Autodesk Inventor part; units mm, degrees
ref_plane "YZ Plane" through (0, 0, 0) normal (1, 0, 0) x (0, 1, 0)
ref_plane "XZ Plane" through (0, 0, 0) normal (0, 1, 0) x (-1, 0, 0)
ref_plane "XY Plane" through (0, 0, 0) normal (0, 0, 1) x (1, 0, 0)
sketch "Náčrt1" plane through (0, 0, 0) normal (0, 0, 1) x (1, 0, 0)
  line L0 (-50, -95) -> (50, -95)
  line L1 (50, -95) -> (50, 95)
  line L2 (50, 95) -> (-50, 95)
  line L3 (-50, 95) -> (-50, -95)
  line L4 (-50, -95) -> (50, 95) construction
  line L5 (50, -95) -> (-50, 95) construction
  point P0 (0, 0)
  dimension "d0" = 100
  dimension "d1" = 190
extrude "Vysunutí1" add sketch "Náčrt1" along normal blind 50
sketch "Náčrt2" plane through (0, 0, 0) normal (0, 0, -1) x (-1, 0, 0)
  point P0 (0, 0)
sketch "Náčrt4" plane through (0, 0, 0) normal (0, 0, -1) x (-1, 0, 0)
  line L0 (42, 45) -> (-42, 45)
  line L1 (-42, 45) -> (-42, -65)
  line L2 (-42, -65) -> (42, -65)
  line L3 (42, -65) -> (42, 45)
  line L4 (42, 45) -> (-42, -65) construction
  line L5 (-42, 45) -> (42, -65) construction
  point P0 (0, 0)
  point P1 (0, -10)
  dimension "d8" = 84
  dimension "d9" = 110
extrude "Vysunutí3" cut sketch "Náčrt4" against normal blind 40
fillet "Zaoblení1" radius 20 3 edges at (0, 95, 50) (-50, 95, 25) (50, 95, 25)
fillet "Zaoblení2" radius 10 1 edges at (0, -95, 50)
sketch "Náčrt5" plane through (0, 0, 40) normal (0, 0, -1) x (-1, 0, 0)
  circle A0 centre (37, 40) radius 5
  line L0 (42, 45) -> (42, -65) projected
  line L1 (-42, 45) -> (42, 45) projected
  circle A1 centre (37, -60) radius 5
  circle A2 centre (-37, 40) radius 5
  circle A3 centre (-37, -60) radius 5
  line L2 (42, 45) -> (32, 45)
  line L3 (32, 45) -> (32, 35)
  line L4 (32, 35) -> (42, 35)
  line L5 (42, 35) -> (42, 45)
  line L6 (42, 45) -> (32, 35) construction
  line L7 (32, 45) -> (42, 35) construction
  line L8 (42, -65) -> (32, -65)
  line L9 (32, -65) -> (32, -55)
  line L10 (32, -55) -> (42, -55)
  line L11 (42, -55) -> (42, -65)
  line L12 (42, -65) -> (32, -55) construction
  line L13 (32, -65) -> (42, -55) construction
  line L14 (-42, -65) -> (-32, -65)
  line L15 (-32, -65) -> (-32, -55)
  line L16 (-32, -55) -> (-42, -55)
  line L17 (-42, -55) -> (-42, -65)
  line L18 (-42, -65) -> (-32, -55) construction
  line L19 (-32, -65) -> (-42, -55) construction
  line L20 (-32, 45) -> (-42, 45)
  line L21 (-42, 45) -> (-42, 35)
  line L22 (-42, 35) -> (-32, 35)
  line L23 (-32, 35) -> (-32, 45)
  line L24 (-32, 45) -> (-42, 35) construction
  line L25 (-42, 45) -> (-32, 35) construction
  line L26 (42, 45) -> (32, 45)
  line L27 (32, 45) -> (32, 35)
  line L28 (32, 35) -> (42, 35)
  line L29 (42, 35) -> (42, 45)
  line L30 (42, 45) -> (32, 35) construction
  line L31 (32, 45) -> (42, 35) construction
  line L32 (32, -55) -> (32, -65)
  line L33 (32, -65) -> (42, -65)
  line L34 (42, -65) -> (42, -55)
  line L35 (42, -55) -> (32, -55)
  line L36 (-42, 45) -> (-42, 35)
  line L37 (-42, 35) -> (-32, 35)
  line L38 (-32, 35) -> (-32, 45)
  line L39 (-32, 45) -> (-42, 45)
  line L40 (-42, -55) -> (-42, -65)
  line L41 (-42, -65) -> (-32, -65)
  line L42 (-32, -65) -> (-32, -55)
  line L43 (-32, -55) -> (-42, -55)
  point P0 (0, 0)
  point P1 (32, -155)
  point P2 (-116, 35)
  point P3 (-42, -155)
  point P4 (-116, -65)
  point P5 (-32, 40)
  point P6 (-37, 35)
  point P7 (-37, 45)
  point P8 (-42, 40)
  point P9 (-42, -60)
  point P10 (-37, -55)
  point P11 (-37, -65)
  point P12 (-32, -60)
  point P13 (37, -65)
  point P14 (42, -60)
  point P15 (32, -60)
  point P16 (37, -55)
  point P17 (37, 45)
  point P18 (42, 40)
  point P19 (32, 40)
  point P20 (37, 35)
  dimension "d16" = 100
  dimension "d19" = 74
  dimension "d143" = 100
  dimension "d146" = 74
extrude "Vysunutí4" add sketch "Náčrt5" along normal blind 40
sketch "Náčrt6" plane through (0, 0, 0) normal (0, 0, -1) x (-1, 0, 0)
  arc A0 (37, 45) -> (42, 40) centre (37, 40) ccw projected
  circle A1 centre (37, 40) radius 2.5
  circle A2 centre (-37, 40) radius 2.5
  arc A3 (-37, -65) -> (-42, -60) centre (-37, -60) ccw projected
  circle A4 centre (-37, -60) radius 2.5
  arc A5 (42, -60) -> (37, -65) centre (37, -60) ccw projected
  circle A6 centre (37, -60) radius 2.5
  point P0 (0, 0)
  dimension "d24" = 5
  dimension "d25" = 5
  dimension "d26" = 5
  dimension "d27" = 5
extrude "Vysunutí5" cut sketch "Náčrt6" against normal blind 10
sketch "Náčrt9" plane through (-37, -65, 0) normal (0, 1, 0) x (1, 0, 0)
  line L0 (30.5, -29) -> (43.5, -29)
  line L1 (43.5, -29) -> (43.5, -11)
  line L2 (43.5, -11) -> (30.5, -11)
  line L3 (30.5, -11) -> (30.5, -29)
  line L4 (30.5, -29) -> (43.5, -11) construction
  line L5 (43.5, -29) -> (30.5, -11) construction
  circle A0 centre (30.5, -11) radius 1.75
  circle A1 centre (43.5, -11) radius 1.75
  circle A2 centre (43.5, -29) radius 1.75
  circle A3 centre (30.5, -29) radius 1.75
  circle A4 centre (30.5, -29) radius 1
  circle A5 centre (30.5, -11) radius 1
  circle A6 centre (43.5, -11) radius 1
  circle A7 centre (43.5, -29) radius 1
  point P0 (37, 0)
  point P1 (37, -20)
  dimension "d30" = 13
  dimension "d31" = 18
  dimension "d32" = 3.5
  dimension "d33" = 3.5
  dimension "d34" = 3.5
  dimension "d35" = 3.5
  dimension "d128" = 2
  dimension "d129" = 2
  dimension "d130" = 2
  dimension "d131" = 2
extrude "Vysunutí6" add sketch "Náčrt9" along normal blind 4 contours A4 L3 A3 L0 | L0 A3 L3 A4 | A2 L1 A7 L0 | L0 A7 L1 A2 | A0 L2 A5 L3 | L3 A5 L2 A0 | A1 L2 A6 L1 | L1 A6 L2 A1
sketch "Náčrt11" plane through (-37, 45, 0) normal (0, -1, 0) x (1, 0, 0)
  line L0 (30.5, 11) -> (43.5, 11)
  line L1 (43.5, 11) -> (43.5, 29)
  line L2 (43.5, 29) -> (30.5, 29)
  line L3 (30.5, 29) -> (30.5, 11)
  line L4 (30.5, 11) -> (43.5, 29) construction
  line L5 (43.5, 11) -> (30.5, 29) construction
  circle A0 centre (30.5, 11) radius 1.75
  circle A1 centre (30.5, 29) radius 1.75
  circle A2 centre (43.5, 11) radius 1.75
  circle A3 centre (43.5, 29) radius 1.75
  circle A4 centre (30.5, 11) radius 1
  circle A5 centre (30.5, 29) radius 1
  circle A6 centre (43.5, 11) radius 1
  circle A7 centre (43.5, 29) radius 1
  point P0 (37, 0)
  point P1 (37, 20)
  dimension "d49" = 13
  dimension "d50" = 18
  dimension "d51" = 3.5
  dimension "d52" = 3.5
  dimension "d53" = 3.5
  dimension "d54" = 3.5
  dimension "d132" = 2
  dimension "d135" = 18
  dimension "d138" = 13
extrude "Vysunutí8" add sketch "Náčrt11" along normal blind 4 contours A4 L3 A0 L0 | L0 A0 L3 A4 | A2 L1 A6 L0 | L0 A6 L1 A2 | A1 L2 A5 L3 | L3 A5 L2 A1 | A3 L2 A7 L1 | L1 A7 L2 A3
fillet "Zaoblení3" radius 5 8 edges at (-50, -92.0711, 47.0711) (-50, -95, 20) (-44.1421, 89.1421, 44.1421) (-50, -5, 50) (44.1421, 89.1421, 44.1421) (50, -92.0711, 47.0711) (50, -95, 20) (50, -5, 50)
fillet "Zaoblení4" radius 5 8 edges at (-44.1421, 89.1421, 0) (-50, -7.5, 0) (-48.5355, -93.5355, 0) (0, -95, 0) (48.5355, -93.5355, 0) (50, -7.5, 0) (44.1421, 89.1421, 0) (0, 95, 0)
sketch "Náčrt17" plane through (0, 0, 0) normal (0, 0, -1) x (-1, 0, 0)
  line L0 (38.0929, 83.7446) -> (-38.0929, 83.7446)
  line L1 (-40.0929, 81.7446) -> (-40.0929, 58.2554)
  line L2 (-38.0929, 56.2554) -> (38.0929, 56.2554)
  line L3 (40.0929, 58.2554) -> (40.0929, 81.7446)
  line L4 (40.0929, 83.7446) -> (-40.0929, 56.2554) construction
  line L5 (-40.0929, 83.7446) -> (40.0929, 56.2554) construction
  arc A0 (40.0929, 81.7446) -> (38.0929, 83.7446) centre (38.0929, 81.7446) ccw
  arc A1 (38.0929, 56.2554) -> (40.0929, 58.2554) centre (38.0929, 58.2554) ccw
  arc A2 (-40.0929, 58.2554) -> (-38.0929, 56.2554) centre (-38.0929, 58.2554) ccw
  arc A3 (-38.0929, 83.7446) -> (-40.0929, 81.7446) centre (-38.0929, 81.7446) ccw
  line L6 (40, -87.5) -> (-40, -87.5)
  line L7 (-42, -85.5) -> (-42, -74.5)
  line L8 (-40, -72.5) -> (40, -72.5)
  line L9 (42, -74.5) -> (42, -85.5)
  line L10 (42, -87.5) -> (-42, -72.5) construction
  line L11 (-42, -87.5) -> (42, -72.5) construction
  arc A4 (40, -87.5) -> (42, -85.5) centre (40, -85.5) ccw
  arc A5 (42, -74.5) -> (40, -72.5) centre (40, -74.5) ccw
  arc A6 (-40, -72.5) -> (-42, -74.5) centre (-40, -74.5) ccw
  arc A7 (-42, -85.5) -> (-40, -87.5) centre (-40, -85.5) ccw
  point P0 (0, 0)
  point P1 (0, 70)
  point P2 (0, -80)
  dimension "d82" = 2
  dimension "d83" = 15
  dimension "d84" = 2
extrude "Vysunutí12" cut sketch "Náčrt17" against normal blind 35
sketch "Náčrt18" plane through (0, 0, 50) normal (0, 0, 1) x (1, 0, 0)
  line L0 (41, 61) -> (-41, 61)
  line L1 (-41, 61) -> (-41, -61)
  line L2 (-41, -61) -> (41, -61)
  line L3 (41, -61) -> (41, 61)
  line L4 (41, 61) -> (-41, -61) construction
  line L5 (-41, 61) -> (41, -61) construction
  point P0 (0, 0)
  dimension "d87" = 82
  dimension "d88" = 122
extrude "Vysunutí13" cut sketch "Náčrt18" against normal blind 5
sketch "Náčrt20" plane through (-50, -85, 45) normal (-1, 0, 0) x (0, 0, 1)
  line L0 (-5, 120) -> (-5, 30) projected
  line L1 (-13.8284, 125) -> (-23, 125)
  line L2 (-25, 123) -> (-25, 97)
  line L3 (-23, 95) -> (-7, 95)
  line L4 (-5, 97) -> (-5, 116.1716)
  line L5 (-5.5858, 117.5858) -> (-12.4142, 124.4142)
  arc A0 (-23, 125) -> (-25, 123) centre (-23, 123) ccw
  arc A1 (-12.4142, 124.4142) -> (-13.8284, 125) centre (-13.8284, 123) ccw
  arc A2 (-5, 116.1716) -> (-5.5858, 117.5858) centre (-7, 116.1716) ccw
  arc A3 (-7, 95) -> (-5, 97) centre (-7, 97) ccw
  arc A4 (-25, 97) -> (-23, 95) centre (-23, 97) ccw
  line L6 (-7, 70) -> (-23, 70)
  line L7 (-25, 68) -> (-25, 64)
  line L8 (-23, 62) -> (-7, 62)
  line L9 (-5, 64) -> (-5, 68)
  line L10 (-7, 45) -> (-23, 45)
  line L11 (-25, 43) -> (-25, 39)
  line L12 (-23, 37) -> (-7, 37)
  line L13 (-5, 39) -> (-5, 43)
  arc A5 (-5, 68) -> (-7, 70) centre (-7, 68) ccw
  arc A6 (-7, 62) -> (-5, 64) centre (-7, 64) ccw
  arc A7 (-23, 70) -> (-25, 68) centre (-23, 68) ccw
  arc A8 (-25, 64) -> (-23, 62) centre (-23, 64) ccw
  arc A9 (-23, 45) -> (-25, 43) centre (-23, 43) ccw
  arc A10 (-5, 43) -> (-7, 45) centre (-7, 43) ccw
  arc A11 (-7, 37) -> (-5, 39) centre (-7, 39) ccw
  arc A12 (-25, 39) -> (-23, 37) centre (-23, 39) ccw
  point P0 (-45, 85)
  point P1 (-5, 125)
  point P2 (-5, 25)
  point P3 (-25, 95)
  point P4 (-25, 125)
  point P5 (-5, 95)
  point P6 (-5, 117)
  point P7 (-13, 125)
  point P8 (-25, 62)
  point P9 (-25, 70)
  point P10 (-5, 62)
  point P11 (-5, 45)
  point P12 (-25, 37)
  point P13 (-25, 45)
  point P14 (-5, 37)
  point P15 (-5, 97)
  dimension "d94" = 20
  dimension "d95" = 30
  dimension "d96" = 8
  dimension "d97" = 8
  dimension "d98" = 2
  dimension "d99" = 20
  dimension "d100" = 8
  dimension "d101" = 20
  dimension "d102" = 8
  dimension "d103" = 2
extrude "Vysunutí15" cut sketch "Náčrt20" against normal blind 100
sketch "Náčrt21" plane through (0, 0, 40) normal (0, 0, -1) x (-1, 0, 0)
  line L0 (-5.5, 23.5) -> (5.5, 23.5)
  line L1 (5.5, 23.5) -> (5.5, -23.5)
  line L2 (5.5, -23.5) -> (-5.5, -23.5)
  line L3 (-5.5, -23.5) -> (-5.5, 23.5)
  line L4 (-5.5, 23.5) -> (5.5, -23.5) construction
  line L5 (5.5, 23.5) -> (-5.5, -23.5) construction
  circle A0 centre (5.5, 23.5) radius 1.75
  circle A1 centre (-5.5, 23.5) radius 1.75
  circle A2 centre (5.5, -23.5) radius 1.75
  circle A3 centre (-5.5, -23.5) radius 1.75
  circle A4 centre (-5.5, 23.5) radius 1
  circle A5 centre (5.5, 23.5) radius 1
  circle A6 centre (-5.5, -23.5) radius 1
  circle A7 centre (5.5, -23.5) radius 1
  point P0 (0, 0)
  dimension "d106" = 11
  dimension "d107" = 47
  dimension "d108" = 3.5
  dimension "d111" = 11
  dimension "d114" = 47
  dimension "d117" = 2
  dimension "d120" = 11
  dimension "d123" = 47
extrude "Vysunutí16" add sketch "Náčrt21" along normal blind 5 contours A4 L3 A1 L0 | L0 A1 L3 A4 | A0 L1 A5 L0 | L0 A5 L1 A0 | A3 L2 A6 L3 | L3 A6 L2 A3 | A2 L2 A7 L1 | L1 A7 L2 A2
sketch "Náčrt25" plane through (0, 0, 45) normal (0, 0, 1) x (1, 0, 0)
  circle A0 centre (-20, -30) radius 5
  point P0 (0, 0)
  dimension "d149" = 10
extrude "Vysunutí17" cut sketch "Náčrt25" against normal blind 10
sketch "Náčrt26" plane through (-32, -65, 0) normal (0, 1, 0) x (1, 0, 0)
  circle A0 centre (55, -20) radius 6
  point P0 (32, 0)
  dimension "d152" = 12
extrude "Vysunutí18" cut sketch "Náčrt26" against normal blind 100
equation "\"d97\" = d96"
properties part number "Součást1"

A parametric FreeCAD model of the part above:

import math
import FreeCAD as App
import Part
import Sketcher

V = App.Vector
Q = App.Units.Quantity


def edges_at(feature, points):
    """Names of the edges that pass closest to the given points."""
    edges = feature.Shape.Edges
    near = lambda p: min(range(len(edges)), key=lambda i: edges[i].distToShape(Part.Vertex(*p))[0])
    return sorted({f"Edge{near(p) + 1}" for p in points})

doc = App.newDocument("Part")
body = doc.addObject("PartDesign::Body", "Body")

# Sketch on XY plane
sketch1 = body.newObject("Sketcher::SketchObject", "Sketch")
sketch1.AttachmentSupport = (doc.getObject("XY_Plane"), [""])
sketch1.MapMode = "FlatFace"
sketch1.addGeometry([
    Part.LineSegment(V(-50, 95, 0), V(-50, -95, 0)),
    Part.LineSegment(V(-50, -95, 0), V(50, -95, 0)),
    Part.LineSegment(V(50, -95, 0), V(50, 95, 0)),
    Part.LineSegment(V(50, 95, 0), V(-50, 95, 0)),
], False)
sketch1.addConstraint([
    Sketcher.Constraint("Coincident", 0, 2, 1, 1),
    Sketcher.Constraint("Coincident", 1, 2, 2, 1),
    Sketcher.Constraint("Coincident", 2, 2, 3, 1),
    Sketcher.Constraint("Coincident", 3, 2, 0, 1),
    Sketcher.Constraint("Vertical", 0),
    Sketcher.Constraint("Horizontal", 1),
    Sketcher.Constraint("Vertical", 2),
    Sketcher.Constraint("Horizontal", 3),
    Sketcher.Constraint("Symmetric", 0, 2, 2, 2, -1, 1),
    Sketcher.Constraint("DistanceX", 1, 1, 1, 2, 100.0),
    Sketcher.Constraint("DistanceY", 0, 2, 0, 1, 190.0),
])
pad1 = body.newObject("PartDesign::Pad", "Pad")
pad1.Profile = sketch1
pad1.Length = 50

# Sketch on XY plane
sketch2 = body.newObject("Sketcher::SketchObject", "Sketch001")
sketch2.AttachmentSupport = (doc.getObject("XY_Plane"), [""])
sketch2.MapMode = "FlatFace"
sketch2.addGeometry([
    Part.LineSegment(V(-42, -65, 0), V(-42, 45, 0)),
    Part.LineSegment(V(-42, 45, 0), V(42, 45, 0)),
    Part.LineSegment(V(42, 45, 0), V(42, -65, 0)),
    Part.LineSegment(V(42, -65, 0), V(-42, -65, 0)),
], False)
sketch2.addConstraint([
    Sketcher.Constraint("Coincident", 0, 2, 1, 1),
    Sketcher.Constraint("Coincident", 1, 2, 2, 1),
    Sketcher.Constraint("Coincident", 2, 2, 3, 1),
    Sketcher.Constraint("Coincident", 3, 2, 0, 1),
    Sketcher.Constraint("Vertical", 0),
    Sketcher.Constraint("Horizontal", 1),
    Sketcher.Constraint("Vertical", 2),
    Sketcher.Constraint("Horizontal", 3),
    Sketcher.Constraint("DistanceX", 1, 1, 1, 2, 84.0),
    Sketcher.Constraint("DistanceY", 0, 1, 0, 2, 110.0),
    Sketcher.Constraint("DistanceX", 0, 2, -1, 1, 42.0),
    Sketcher.Constraint("DistanceY", -1, 1, 0, 2, 45.0),
])
pocket1 = body.newObject("PartDesign::Pocket", "Pocket")
pocket1.Profile = sketch2
pocket1.Length = 40
pocket1.Reversed = True
doc.recompute()

fillet = body.newObject("PartDesign::Fillet", "Fillet")
fillet.Base = (pocket1, edges_at(pocket1, [(0, 95, 50), (-50, 95, 25), (50, 95, 25)]))
fillet.Radius = 20
doc.recompute()

fillet2 = body.newObject("PartDesign::Fillet", "Fillet001")
fillet2.Base = (fillet, edges_at(fillet, [(0, -95, 50)]))
fillet2.Radius = 10

# Sketch on XY plane
sketch3 = body.newObject("Sketcher::SketchObject", "Sketch002")
sketch3.AttachmentSupport = (doc.getObject("XY_Plane"), [""])
sketch3.MapMode = "FlatFace"
sketch3.AttachmentOffset = App.Placement(V(0, 0, 40), App.Rotation())
sketch3.addGeometry([
    Part.LineSegment(V(-42, 35, 0), V(-42, 45, 0)),  # 0
    Part.LineSegment(V(-42, 45, 0), V(-32, 45, 0)),  # 1
    Part.LineSegment(V(-32, 45, 0), V(-32, 35, 0)),  # 2
    Part.LineSegment(V(-32, 35, 0), V(-42, 35, 0)),  # 3
    Part.LineSegment(V(-42, -55, 0), V(-32, -55, 0)),  # 4
    Part.LineSegment(V(-32, -55, 0), V(-32, -65, 0)),  # 5
    Part.LineSegment(V(-32, -65, 0), V(-42, -65, 0)),  # 6
    Part.LineSegment(V(-42, -65, 0), V(-42, -55, 0)),  # 7
    Part.LineSegment(V(32, 45, 0), V(42, 45, 0)),  # 8
    Part.LineSegment(V(42, 45, 0), V(42, 35, 0)),  # 9
    Part.LineSegment(V(42, 35, 0), V(32, 35, 0)),  # 10
    Part.LineSegment(V(32, 35, 0), V(32, 45, 0)),  # 11
    Part.LineSegment(V(32, -65, 0), V(32, -55, 0)),  # 12
    Part.LineSegment(V(32, -55, 0), V(42, -55, 0)),  # 13
    Part.LineSegment(V(42, -55, 0), V(42, -65, 0)),  # 14
    Part.LineSegment(V(42, -65, 0), V(32, -65, 0)),  # 15
], False)
sketch3.addConstraint([
    Sketcher.Constraint("Coincident", 0, 2, 1, 1),
    Sketcher.Constraint("Coincident", 1, 2, 2, 1),
    Sketcher.Constraint("Coincident", 2, 2, 3, 1),
    Sketcher.Constraint("Coincident", 3, 2, 0, 1),
    Sketcher.Constraint("Coincident", 4, 2, 5, 1),
    Sketcher.Constraint("Coincident", 5, 2, 6, 1),
    Sketcher.Constraint("Coincident", 6, 2, 7, 1),
    Sketcher.Constraint("Coincident", 7, 2, 4, 1),
    Sketcher.Constraint("Coincident", 8, 2, 9, 1),
    Sketcher.Constraint("Coincident", 9, 2, 10, 1),
    Sketcher.Constraint("Coincident", 10, 2, 11, 1),
    Sketcher.Constraint("Coincident", 11, 2, 8, 1),
    Sketcher.Constraint("Coincident", 12, 2, 13, 1),
    Sketcher.Constraint("Coincident", 13, 2, 14, 1),
    Sketcher.Constraint("Coincident", 14, 2, 15, 1),
    Sketcher.Constraint("Coincident", 15, 2, 12, 1),
    Sketcher.Constraint("Vertical", 0),
    Sketcher.Constraint("Horizontal", 1),
    Sketcher.Constraint("Vertical", 2),
    Sketcher.Constraint("Horizontal", 3),
    Sketcher.Constraint("Horizontal", 4),
    Sketcher.Constraint("Vertical", 5),
    Sketcher.Constraint("Horizontal", 6),
    Sketcher.Constraint("Vertical", 7),
    Sketcher.Constraint("Horizontal", 8),
    Sketcher.Constraint("Vertical", 9),
    Sketcher.Constraint("Horizontal", 10),
    Sketcher.Constraint("Vertical", 11),
    Sketcher.Constraint("Vertical", 12),
    Sketcher.Constraint("Horizontal", 13),
    Sketcher.Constraint("Vertical", 14),
    Sketcher.Constraint("Horizontal", 15),
    Sketcher.Constraint("Symmetric", 0, 2, 8, 2, -2),
    Sketcher.Constraint("Symmetric", 2, 2, 10, 2, -2),
    Sketcher.Constraint("Symmetric", 4, 2, 12, 2, -2),
    Sketcher.Constraint("Symmetric", 6, 2, 14, 2, -2),
    Sketcher.Constraint("Vertical", 2, 2, 4, 2),
    Sketcher.Constraint("Vertical", 3, 2, 6, 2),
    Sketcher.Constraint("Equal", 15, 0),
    Sketcher.Constraint("Equal", 2, 5),
    Sketcher.Constraint("DistanceY", 4, 2, 1, 2, 100.0),
    Sketcher.Constraint("DistanceX", 1, 2, 8, 2, 74.0),
    Sketcher.Constraint("DistanceX", 1, 1, 1, 2, 10.0),
    Sketcher.Constraint("DistanceY", -1, 1, 0, 2, 45.0),
])
pad2 = body.newObject("PartDesign::Pad", "Pad001")
pad2.Profile = sketch3
pad2.Length = 40
pad2.Reversed = True

# Sketch on XY plane
sketch4 = body.newObject("Sketcher::SketchObject", "Sketch003")
sketch4.AttachmentSupport = (doc.getObject("XY_Plane"), [""])
sketch4.MapMode = "FlatFace"
sketch4.addGeometry([
    Part.Circle(V(-37, 40, 0), V(0, 0, 1), 2.5),
    Part.Circle(V(37, 40, 0), V(0, 0, 1), 2.5),
    Part.Circle(V(37, -60, 0), V(0, 0, 1), 2.5),
    Part.Circle(V(-37, -60, 0), V(0, 0, 1), 2.5),
], False)
sketch4.addConstraint([
    Sketcher.Constraint("Equal", 0, 1),
    Sketcher.Constraint("Equal", 1, 2),
    Sketcher.Constraint("Equal", 2, 3),
    Sketcher.Constraint("Symmetric", 0, 3, 1, 3, -2),
    Sketcher.Constraint("Symmetric", 2, 3, 3, 3, -2),
    Sketcher.Constraint("Vertical", 1, 3, 2, 3),
    Sketcher.Constraint("Diameter", 0, 5.0),
    Sketcher.Constraint("DistanceX", 0, 3, -1, 1, 37.0),
    Sketcher.Constraint("DistanceY", -1, 1, 0, 3, 40.0),
    Sketcher.Constraint("DistanceY", 2, 3, -1, 1, 60.0),
])
pocket2 = body.newObject("PartDesign::Pocket", "Pocket001")
pocket2.Profile = sketch4
pocket2.Length = 10
pocket2.Reversed = True

# Sketch on XZ plane
sketch5 = body.newObject("Sketcher::SketchObject", "Sketch004")
sketch5.AttachmentSupport = (doc.getObject("XZ_Plane"), [""])
sketch5.MapMode = "FlatFace"
sketch5.AttachmentOffset = App.Placement(V(0, 0, 65), App.Rotation())
sketch5.addGeometry([
    Part.Circle(V(-6.5, 29, 0), V(0, 0, 1), 1.75),  # 0
    Part.Circle(V(-6.5, 29, 0), V(0, 0, 1), 1),  # 1
    Part.Circle(V(6.5, 29, 0), V(0, 0, 1), 1.75),  # 2
    Part.Circle(V(6.5, 29, 0), V(0, 0, 1), 1),  # 3
    Part.Circle(V(-6.5, 11, 0), V(0, 0, 1), 1.75),  # 4
    Part.Circle(V(-6.5, 11, 0), V(0, 0, 1), 1),  # 5
    Part.Circle(V(6.5, 11, 0), V(0, 0, 1), 1.75),  # 6
    Part.Circle(V(6.5, 11, 0), V(0, 0, 1), 1),  # 7
], False)
sketch5.addConstraint([
    Sketcher.Constraint("Coincident", 1, 3, 0, 3),
    Sketcher.Constraint("Coincident", 3, 3, 2, 3),
    Sketcher.Constraint("Coincident", 5, 3, 4, 3),
    Sketcher.Constraint("Coincident", 7, 3, 6, 3),
    Sketcher.Constraint("Equal", 0, 2),
    Sketcher.Constraint("Equal", 1, 3),
    Sketcher.Constraint("Equal", 2, 4),
    Sketcher.Constraint("Equal", 3, 5),
    Sketcher.Constraint("Equal", 4, 6),
    Sketcher.Constraint("Equal", 5, 7),
    Sketcher.Constraint("Symmetric", 0, 3, 2, 3, -2),
    Sketcher.Constraint("Symmetric", 4, 3, 6, 3, -2),
    Sketcher.Constraint("Vertical", 1, 3, 4, 3),
    Sketcher.Constraint("Diameter", 1, 2.0),
    Sketcher.Constraint("Diameter", 0, 3.5),
    Sketcher.Constraint("DistanceX", 0, 3, 2, 3, 13.0),
    Sketcher.Constraint("DistanceY", 4, 3, 0, 3, 18.0),
    Sketcher.Constraint("DistanceY", -1, 1, 0, 3, 29.0),
])
pad3 = body.newObject("PartDesign::Pad", "Pad002")
pad3.Profile = sketch5
pad3.Length = 4
pad3.Reversed = True

# Sketch on XZ plane
sketch6 = body.newObject("Sketcher::SketchObject", "Sketch005")
sketch6.AttachmentSupport = (doc.getObject("XZ_Plane"), [""])
sketch6.MapMode = "FlatFace"
sketch6.AttachmentOffset = App.Placement(V(0, 0, -45), App.Rotation())
sketch6.addGeometry([
    Part.Circle(V(-6.5, 11, 0), V(0, 0, 1), 1.75),  # 0
    Part.Circle(V(-6.5, 11, 0), V(0, 0, 1), 1),  # 1
    Part.Circle(V(6.5, 11, 0), V(0, 0, 1), 1.75),  # 2
    Part.Circle(V(6.5, 11, 0), V(0, 0, 1), 1),  # 3
    Part.Circle(V(-6.5, 29, 0), V(0, 0, 1), 1.75),  # 4
    Part.Circle(V(-6.5, 29, 0), V(0, 0, 1), 1),  # 5
    Part.Circle(V(6.5, 29, 0), V(0, 0, 1), 1.75),  # 6
    Part.Circle(V(6.5, 29, 0), V(0, 0, 1), 1),  # 7
], False)
sketch6.addConstraint([
    Sketcher.Constraint("Coincident", 1, 3, 0, 3),
    Sketcher.Constraint("Coincident", 3, 3, 2, 3),
    Sketcher.Constraint("Coincident", 5, 3, 4, 3),
    Sketcher.Constraint("Coincident", 7, 3, 6, 3),
    Sketcher.Constraint("Equal", 0, 2),
    Sketcher.Constraint("Equal", 1, 3),
    Sketcher.Constraint("Equal", 2, 4),
    Sketcher.Constraint("Equal", 3, 5),
    Sketcher.Constraint("Equal", 4, 6),
    Sketcher.Constraint("Equal", 5, 7),
    Sketcher.Constraint("Symmetric", 0, 3, 2, 3, -2),
    Sketcher.Constraint("Symmetric", 4, 3, 6, 3, -2),
    Sketcher.Constraint("Vertical", 1, 3, 4, 3),
    Sketcher.Constraint("Diameter", 1, 2.0),
    Sketcher.Constraint("Diameter", 0, 3.5),
    Sketcher.Constraint("DistanceX", 0, 3, 2, 3, 13.0),
    Sketcher.Constraint("DistanceY", 0, 3, 4, 3, 18.0),
    Sketcher.Constraint("DistanceY", -1, 1, 0, 3, 11.0),
])
pad4 = body.newObject("PartDesign::Pad", "Pad003")
pad4.Profile = sketch6
pad4.Length = 4
doc.recompute()

fillet3 = body.newObject("PartDesign::Fillet", "Fillet002")
fillet3.Base = (pad4, edges_at(pad4, [
    (-50, -92.071, 47.071),
    (-50, -95, 20),
    (-44.142, 89.142, 44.142),
    (-50, -5, 50),
    (44.142, 89.142, 44.142),
    (50, -92.071, 47.071),
    (50, -95, 20),
    (50, -5, 50),
]))
fillet3.Radius = 5
doc.recompute()

fillet4 = body.newObject("PartDesign::Fillet", "Fillet003")
fillet4.Base = (fillet3, edges_at(fillet3, [
    (-44.142, 89.142, 0),
    (-50, -7.5, 0),
    (-48.535, -93.535, 0),
    (0, -95, 0),
    (48.535, -93.535, 0),
    (50, -7.5, 0),
    (44.142, 89.142, 0),
    (0, 95, 0),
]))
fillet4.Radius = 5

# Sketch on XY plane
sketch7 = body.newObject("Sketcher::SketchObject", "Sketch006")
sketch7.AttachmentSupport = (doc.getObject("XY_Plane"), [""])
sketch7.MapMode = "FlatFace"
sketch7.addGeometry([
    Part.ArcOfCircle(Part.Circle(V(-38.0929, 81.7446, 0), V(0, 0, 1), 2), math.radians(90), math.radians(180)),  # 0
    Part.LineSegment(V(-38.0929, 83.7446, 0), V(38.0929, 83.7446, 0)),  # 1
    Part.ArcOfCircle(Part.Circle(V(38.0929, 81.7446, 0), V(0, 0, 1), 2), math.radians(0), math.radians(90)),  # 2
    Part.LineSegment(V(40.0929, 81.7446, 0), V(40.0929, 58.2554, 0)),  # 3
    Part.ArcOfCircle(Part.Circle(V(38.0929, 58.2554, 0), V(0, 0, 1), 2), math.radians(-90), math.radians(0)),  # 4
    Part.LineSegment(V(38.0929, 56.2554, 0), V(-38.0929, 56.2554, 0)),  # 5
    Part.ArcOfCircle(Part.Circle(V(-38.0929, 58.2554, 0), V(0, 0, 1), 2), math.radians(180), math.radians(270)),  # 6
    Part.LineSegment(V(-40.0929, 58.2554, 0), V(-40.0929, 81.7446, 0)),  # 7
    Part.LineSegment(V(40, -87.5, 0), V(-40, -87.5, 0)),  # 8
    Part.ArcOfCircle(Part.Circle(V(-40, -85.5, 0), V(0, 0, 1), 2), math.radians(180), math.radians(270)),  # 9
    Part.LineSegment(V(-42, -85.5, 0), V(-42, -74.5, 0)),  # 10
    Part.ArcOfCircle(Part.Circle(V(-40, -74.5, 0), V(0, 0, 1), 2), math.radians(90), math.radians(180)),  # 11
    Part.LineSegment(V(-40, -72.5, 0), V(40, -72.5, 0)),  # 12
    Part.ArcOfCircle(Part.Circle(V(40, -74.5, 0), V(0, 0, 1), 2), math.radians(0), math.radians(90)),  # 13
    Part.LineSegment(V(42, -74.5, 0), V(42, -85.5, 0)),  # 14
    Part.ArcOfCircle(Part.Circle(V(40, -85.5, 0), V(0, 0, 1), 2), math.radians(-90), math.radians(0)),  # 15
], False)
sketch7.addConstraint([
    Sketcher.Constraint("Tangent", 0, 1, 1, 1),
    Sketcher.Constraint("Tangent", 1, 2, 2, 2),
    Sketcher.Constraint("Tangent", 2, 1, 3, 1),
    Sketcher.Constraint("Tangent", 3, 2, 4, 2),
    Sketcher.Constraint("Tangent", 4, 1, 5, 1),
    Sketcher.Constraint("Tangent", 5, 2, 6, 2),
    Sketcher.Constraint("Tangent", 6, 1, 7, 1),
    Sketcher.Constraint("Tangent", 7, 2, 0, 2),
    Sketcher.Constraint("Tangent", 8, 2, 9, 2),
    Sketcher.Constraint("Tangent", 9, 1, 10, 1),
    Sketcher.Constraint("Tangent", 10, 2, 11, 2),
    Sketcher.Constraint("Tangent", 11, 1, 12, 1),
    Sketcher.Constraint("Tangent", 12, 2, 13, 2),
    Sketcher.Constraint("Tangent", 13, 1, 14, 1),
    Sketcher.Constraint("Tangent", 14, 2, 15, 2),
    Sketcher.Constraint("Tangent", 15, 1, 8, 1),
    Sketcher.Constraint("Horizontal", 1),
    Sketcher.Constraint("Vertical", 3),
    Sketcher.Constraint("Horizontal", 5),
    Sketcher.Constraint("Vertical", 7),
    Sketcher.Constraint("Horizontal", 8),
    Sketcher.Constraint("Vertical", 10),
    Sketcher.Constraint("Horizontal", 12),
    Sketcher.Constraint("Vertical", 14),
    Sketcher.Constraint("Equal", 0, 2),
    Sketcher.Constraint("Equal", 2, 4),
    Sketcher.Constraint("Equal", 4, 6),
    Sketcher.Constraint("Equal", 6, 9),
    Sketcher.Constraint("Equal", 9, 11),
    Sketcher.Constraint("Equal", 11, 13),
    Sketcher.Constraint("Equal", 13, 15),
    Sketcher.Constraint("Radius", 0, 2.0),
    Sketcher.Constraint("DistanceY", 8, 2, 11, 1, 15.0),
    Sketcher.Constraint("DistanceX", 8, 2, 8, 1, 80.0),
    Sketcher.Constraint("DistanceX", 9, 3, -1, 1, 40.0),
    Sketcher.Constraint("DistanceY", 9, 3, -1, 1, 85.5),
    Sketcher.Constraint("DistanceX", 1, 1, 1, 2, 76.1858),
    Sketcher.Constraint("DistanceY", 3, 2, 3, 1, 23.4892),
    Sketcher.Constraint("DistanceX", 0, 3, -1, 1, 38.093),
    Sketcher.Constraint("DistanceY", -1, 1, 0, 3, 81.7446),
])
pocket3 = body.newObject("PartDesign::Pocket", "Pocket002")
pocket3.Profile = sketch7
pocket3.Length = 35
pocket3.Reversed = True

# Sketch on XY plane
sketch8 = body.newObject("Sketcher::SketchObject", "Sketch007")
sketch8.AttachmentSupport = (doc.getObject("XY_Plane"), [""])
sketch8.MapMode = "FlatFace"
sketch8.AttachmentOffset = App.Placement(V(0, 0, 50), App.Rotation())
sketch8.addGeometry([
    Part.LineSegment(V(41, -61, 0), V(41, 61, 0)),
    Part.LineSegment(V(41, 61, 0), V(-41, 61, 0)),
    Part.LineSegment(V(-41, 61, 0), V(-41, -61, 0)),
    Part.LineSegment(V(-41, -61, 0), V(41, -61, 0)),
], False)
sketch8.addConstraint([
    Sketcher.Constraint("Coincident", 0, 2, 1, 1),
    Sketcher.Constraint("Coincident", 1, 2, 2, 1),
    Sketcher.Constraint("Coincident", 2, 2, 3, 1),
    Sketcher.Constraint("Coincident", 3, 2, 0, 1),
    Sketcher.Constraint("Vertical", 0),
    Sketcher.Constraint("Horizontal", 1),
    Sketcher.Constraint("Vertical", 2),
    Sketcher.Constraint("Horizontal", 3),
    Sketcher.Constraint("Symmetric", 0, 2, 2, 2, -1, 1),
    Sketcher.Constraint("DistanceX", 1, 2, 1, 1, 82.0),
    Sketcher.Constraint("DistanceY", 0, 1, 0, 2, 122.0),
])
pocket4 = body.newObject("PartDesign::Pocket", "Pocket003")
pocket4.Profile = sketch8
pocket4.Length = 5

# Sketch on YZ plane
sketch9 = body.newObject("Sketcher::SketchObject", "Sketch008")
sketch9.AttachmentSupport = (doc.getObject("YZ_Plane"), [""])
sketch9.MapMode = "FlatFace"
sketch9.AttachmentOffset = App.Placement(V(0, 0, -50), App.Rotation())
sketch9.addGeometry([
    Part.LineSegment(V(-46, 40, 0), V(-42, 40, 0)),  # 0
    Part.ArcOfCircle(Part.Circle(V(-42, 38, 0), V(0, 0, 1), 2), math.radians(0), math.radians(90)),  # 1
    Part.LineSegment(V(-40, 38, 0), V(-40, 22, 0)),  # 2
    Part.ArcOfCircle(Part.Circle(V(-42, 22, 0), V(0, 0, 1), 2), math.radians(-90), math.radians(0)),  # 3
    Part.LineSegment(V(-42, 20, 0), V(-46, 20, 0)),  # 4
    Part.ArcOfCircle(Part.Circle(V(-46, 22, 0), V(0, 0, 1), 2), math.radians(180), math.radians(270)),  # 5
    Part.LineSegment(V(-48, 22, 0), V(-48, 38, 0)),  # 6
    Part.ArcOfCircle(Part.Circle(V(-46, 38, 0), V(0, 0, 1), 2), math.radians(90), math.radians(180)),  # 7
    Part.LineSegment(V(-21, 40, 0), V(-17, 40, 0)),  # 8
    Part.ArcOfCircle(Part.Circle(V(-17, 38, 0), V(0, 0, 1), 2), math.radians(0), math.radians(90)),  # 9
    Part.LineSegment(V(-15, 38, 0), V(-15, 22, 0)),  # 10
    Part.ArcOfCircle(Part.Circle(V(-17, 22, 0), V(0, 0, 1), 2), math.radians(-90), math.radians(0)),  # 11
    Part.LineSegment(V(-17, 20, 0), V(-21, 20, 0)),  # 12
    Part.ArcOfCircle(Part.Circle(V(-21, 22, 0), V(0, 0, 1), 2), math.radians(180), math.radians(270)),  # 13
    Part.LineSegment(V(-23, 22, 0), V(-23, 38, 0)),  # 14
    Part.ArcOfCircle(Part.Circle(V(-21, 38, 0), V(0, 0, 1), 2), math.radians(90), math.radians(180)),  # 15
    Part.LineSegment(V(12, 40, 0), V(31.1716, 40, 0)),  # 16
    Part.ArcOfCircle(Part.Circle(V(31.1716, 38, 0), V(0, 0, 1), 2), math.radians(45), math.radians(90)),  # 17
    Part.LineSegment(V(32.5858, 39.4142, 0), V(39.4142, 32.5858, 0)),  # 18
    Part.ArcOfCircle(Part.Circle(V(38, 31.1716, 0), V(0, 0, 1), 1.999981), math.radians(0), math.radians(45)),  # 19
    Part.LineSegment(V(40, 31.1716, 0), V(40, 22, 0)),  # 20
    Part.ArcOfCircle(Part.Circle(V(38, 22, 0), V(0, 0, 1), 2), math.radians(-90), math.radians(0)),  # 21
    Part.LineSegment(V(38, 20, 0), V(12, 20, 0)),  # 22
    Part.ArcOfCircle(Part.Circle(V(12, 22, 0), V(0, 0, 1), 2), math.radians(180), math.radians(270)),  # 23
    Part.LineSegment(V(10, 22, 0), V(10, 38, 0)),  # 24
    Part.ArcOfCircle(Part.Circle(V(12, 38, 0), V(0, 0, 1), 2), math.radians(90), math.radians(180)),  # 25
], False)
sketch9.addConstraint([
    Sketcher.Constraint("Tangent", 0, 2, 1, 2),
    Sketcher.Constraint("Tangent", 1, 1, 2, 1),
    Sketcher.Constraint("Tangent", 2, 2, 3, 2),
    Sketcher.Constraint("Tangent", 3, 1, 4, 1),
    Sketcher.Constraint("Tangent", 4, 2, 5, 2),
    Sketcher.Constraint("Tangent", 5, 1, 6, 1),
    Sketcher.Constraint("Tangent", 6, 2, 7, 2),
    Sketcher.Constraint("Tangent", 7, 1, 0, 1),
    Sketcher.Constraint("Tangent", 8, 2, 9, 2),
    Sketcher.Constraint("Tangent", 9, 1, 10, 1),
    Sketcher.Constraint("Tangent", 10, 2, 11, 2),
    Sketcher.Constraint("Tangent", 11, 1, 12, 1),
    Sketcher.Constraint("Tangent", 12, 2, 13, 2),
    Sketcher.Constraint("Tangent", 13, 1, 14, 1),
    Sketcher.Constraint("Tangent", 14, 2, 15, 2),
    Sketcher.Constraint("Tangent", 15, 1, 8, 1),
    Sketcher.Constraint("Tangent", 16, 2, 17, 2),
    Sketcher.Constraint("Tangent", 17, 1, 18, 1),
    Sketcher.Constraint("Tangent", 18, 2, 19, 2),
    Sketcher.Constraint("Tangent", 19, 1, 20, 1),
    Sketcher.Constraint("Tangent", 20, 2, 21, 2),
    Sketcher.Constraint("Tangent", 21, 1, 22, 1),
    Sketcher.Constraint("Tangent", 22, 2, 23, 2),
    Sketcher.Constraint("Tangent", 23, 1, 24, 1),
    Sketcher.Constraint("Tangent", 24, 2, 25, 2),
    Sketcher.Constraint("Tangent", 25, 1, 16, 1),
    Sketcher.Constraint("Horizontal", 0),
    Sketcher.Constraint("Vertical", 2),
    Sketcher.Constraint("Horizontal", 4),
    Sketcher.Constraint("Vertical", 6),
    Sketcher.Constraint("Horizontal", 8),
    Sketcher.Constraint("Vertical", 10),
    Sketcher.Constraint("Horizontal", 12),
    Sketcher.Constraint("Vertical", 14),
    Sketcher.Constraint("Horizontal", 16),
    Sketcher.Constraint("Vertical", 20),
    Sketcher.Constraint("Horizontal", 22),
    Sketcher.Constraint("Vertical", 24),
    Sketcher.Constraint("Equal", 1, 3),
    Sketcher.Constraint("Equal", 3, 5),
    Sketcher.Constraint("Equal", 5, 7),
    Sketcher.Constraint("Equal", 7, 9),
    Sketcher.Constraint("Equal", 9, 11),
    Sketcher.Constraint("Equal", 11, 13),
    Sketcher.Constraint("Equal", 13, 15),
    Sketcher.Constraint("Equal", 15, 17),
    Sketcher.Constraint("Equal", 17, 19),
    Sketcher.Constraint("Equal", 19, 21),
    Sketcher.Constraint("Equal", 21, 23),
    Sketcher.Constraint("Equal", 23, 25),
    Sketcher.Constraint("Symmetric", 2, 2, 20, 2, -2),
    Sketcher.Constraint("Horizontal", 7, 3, 9, 3),
    Sketcher.Constraint("Horizontal", 5, 3, 11, 3),
    Sketcher.Constraint("Horizontal", 15, 3, 17, 3),
    Sketcher.Constraint("Equal", 4, 8),
    Sketcher.Constraint("Radius", 1, 2.0),
    Sketcher.Constraint("DistanceY", -1, 1, 3, 1, 20.0),
    Sketcher.Constraint("DistanceX", 5, 1, 2, 2, 8.0),
    Sketcher.Constraint("DistanceX", 22, 2, 22, 1, 26.0),
    Sketcher.Constraint("DistanceY", 2, 2, 2, 1, 16.0),
    Sketcher.Constraint("Angle", 18, Q("-45 deg")),
    Sketcher.Constraint("DistanceX", 1, 3, -1, 1, 42.0),
    Sketcher.Constraint("DistanceX", 9, 3, -1, 1, 17.0),
    Sketcher.Constraint("DistanceX", 16, 1, 16, 2, 19.1716),
])
pocket5 = body.newObject("PartDesign::Pocket", "Pocket004")
pocket5.Profile = sketch9
pocket5.Length = 100
pocket5.Reversed = True

# Sketch on XY plane
sketch10 = body.newObject("Sketcher::SketchObject", "Sketch009")
sketch10.AttachmentSupport = (doc.getObject("XY_Plane"), [""])
sketch10.MapMode = "FlatFace"
sketch10.AttachmentOffset = App.Placement(V(0, 0, 40), App.Rotation())
sketch10.addGeometry([
    Part.Circle(V(5.5, 23.5, 0), V(0, 0, 1), 1.75),  # 0
    Part.Circle(V(5.5, 23.5, 0), V(0, 0, 1), 1),  # 1
    Part.Circle(V(-5.5, 23.5, 0), V(0, 0, 1), 1.75),  # 2
    Part.Circle(V(-5.5, 23.5, 0), V(0, 0, 1), 1),  # 3
    Part.Circle(V(5.5, -23.5, 0), V(0, 0, 1), 1.75),  # 4
    Part.Circle(V(5.5, -23.5, 0), V(0, 0, 1), 1),  # 5
    Part.Circle(V(-5.5, -23.5, 0), V(0, 0, 1), 1.75),  # 6
    Part.Circle(V(-5.5, -23.5, 0), V(0, 0, 1), 1),  # 7
], False)
sketch10.addConstraint([
    Sketcher.Constraint("Coincident", 1, 3, 0, 3),
    Sketcher.Constraint("Coincident", 3, 3, 2, 3),
    Sketcher.Constraint("Coincident", 5, 3, 4, 3),
    Sketcher.Constraint("Coincident", 7, 3, 6, 3),
    Sketcher.Constraint("Equal", 0, 2),
    Sketcher.Constraint("Equal", 1, 3),
    Sketcher.Constraint("Equal", 2, 4),
    Sketcher.Constraint("Equal", 3, 5),
    Sketcher.Constraint("Equal", 4, 6),
    Sketcher.Constraint("Equal", 5, 7),
    Sketcher.Constraint("Symmetric", 2, 3, 4, 3, -1, 1),
    Sketcher.Constraint("Symmetric", 0, 3, 6, 3, -1, 1),
    Sketcher.Constraint("Symmetric", 0, 3, 2, 3, -2),
    Sketcher.Constraint("Diameter", 1, 2.0),
    Sketcher.Constraint("Diameter", 0, 3.5),
    Sketcher.Constraint("DistanceX", 2, 3, 0, 3, 11.0),
    Sketcher.Constraint("DistanceY", 4, 3, 0, 3, 47.0),
])
pad5 = body.newObject("PartDesign::Pad", "Pad004")
pad5.Profile = sketch10
pad5.Length = 5
pad5.Reversed = True

# Sketch on XY plane
sketch11 = body.newObject("Sketcher::SketchObject", "Sketch010")
sketch11.AttachmentSupport = (doc.getObject("XY_Plane"), [""])
sketch11.MapMode = "FlatFace"
sketch11.AttachmentOffset = App.Placement(V(0, 0, 45), App.Rotation())
sketch11.addGeometry(Part.Circle(V(-20, -30, 0), V(0, 0, 1), 5), False)
sketch11.addConstraint([
    Sketcher.Constraint("Diameter", 0, 10.0),
    Sketcher.Constraint("DistanceX", 0, 3, -1, 1, 20.0),
    Sketcher.Constraint("DistanceY", 0, 3, -1, 1, 30.0),
])
pocket6 = body.newObject("PartDesign::Pocket", "Pocket005")
pocket6.Profile = sketch11
pocket6.Length = 10

# Sketch on XZ plane
sketch12 = body.newObject("Sketcher::SketchObject", "Sketch011")
sketch12.AttachmentSupport = (doc.getObject("XZ_Plane"), [""])
sketch12.MapMode = "FlatFace"
sketch12.AttachmentOffset = App.Placement(V(0, 0, 65), App.Rotation())
sketch12.addGeometry(Part.Circle(V(23, 20, 0), V(0, 0, 1), 6), False)
sketch12.addConstraint([
    Sketcher.Constraint("Diameter", 0, 12.0),
    Sketcher.Constraint("DistanceX", -1, 1, 0, 3, 23.0),
    Sketcher.Constraint("DistanceY", -1, 1, 0, 3, 20.0),
])
pocket7 = body.newObject("PartDesign::Pocket", "Pocket006")
pocket7.Profile = sketch12
pocket7.Length = 100
pocket7.Reversed = True

doc.recompute()
